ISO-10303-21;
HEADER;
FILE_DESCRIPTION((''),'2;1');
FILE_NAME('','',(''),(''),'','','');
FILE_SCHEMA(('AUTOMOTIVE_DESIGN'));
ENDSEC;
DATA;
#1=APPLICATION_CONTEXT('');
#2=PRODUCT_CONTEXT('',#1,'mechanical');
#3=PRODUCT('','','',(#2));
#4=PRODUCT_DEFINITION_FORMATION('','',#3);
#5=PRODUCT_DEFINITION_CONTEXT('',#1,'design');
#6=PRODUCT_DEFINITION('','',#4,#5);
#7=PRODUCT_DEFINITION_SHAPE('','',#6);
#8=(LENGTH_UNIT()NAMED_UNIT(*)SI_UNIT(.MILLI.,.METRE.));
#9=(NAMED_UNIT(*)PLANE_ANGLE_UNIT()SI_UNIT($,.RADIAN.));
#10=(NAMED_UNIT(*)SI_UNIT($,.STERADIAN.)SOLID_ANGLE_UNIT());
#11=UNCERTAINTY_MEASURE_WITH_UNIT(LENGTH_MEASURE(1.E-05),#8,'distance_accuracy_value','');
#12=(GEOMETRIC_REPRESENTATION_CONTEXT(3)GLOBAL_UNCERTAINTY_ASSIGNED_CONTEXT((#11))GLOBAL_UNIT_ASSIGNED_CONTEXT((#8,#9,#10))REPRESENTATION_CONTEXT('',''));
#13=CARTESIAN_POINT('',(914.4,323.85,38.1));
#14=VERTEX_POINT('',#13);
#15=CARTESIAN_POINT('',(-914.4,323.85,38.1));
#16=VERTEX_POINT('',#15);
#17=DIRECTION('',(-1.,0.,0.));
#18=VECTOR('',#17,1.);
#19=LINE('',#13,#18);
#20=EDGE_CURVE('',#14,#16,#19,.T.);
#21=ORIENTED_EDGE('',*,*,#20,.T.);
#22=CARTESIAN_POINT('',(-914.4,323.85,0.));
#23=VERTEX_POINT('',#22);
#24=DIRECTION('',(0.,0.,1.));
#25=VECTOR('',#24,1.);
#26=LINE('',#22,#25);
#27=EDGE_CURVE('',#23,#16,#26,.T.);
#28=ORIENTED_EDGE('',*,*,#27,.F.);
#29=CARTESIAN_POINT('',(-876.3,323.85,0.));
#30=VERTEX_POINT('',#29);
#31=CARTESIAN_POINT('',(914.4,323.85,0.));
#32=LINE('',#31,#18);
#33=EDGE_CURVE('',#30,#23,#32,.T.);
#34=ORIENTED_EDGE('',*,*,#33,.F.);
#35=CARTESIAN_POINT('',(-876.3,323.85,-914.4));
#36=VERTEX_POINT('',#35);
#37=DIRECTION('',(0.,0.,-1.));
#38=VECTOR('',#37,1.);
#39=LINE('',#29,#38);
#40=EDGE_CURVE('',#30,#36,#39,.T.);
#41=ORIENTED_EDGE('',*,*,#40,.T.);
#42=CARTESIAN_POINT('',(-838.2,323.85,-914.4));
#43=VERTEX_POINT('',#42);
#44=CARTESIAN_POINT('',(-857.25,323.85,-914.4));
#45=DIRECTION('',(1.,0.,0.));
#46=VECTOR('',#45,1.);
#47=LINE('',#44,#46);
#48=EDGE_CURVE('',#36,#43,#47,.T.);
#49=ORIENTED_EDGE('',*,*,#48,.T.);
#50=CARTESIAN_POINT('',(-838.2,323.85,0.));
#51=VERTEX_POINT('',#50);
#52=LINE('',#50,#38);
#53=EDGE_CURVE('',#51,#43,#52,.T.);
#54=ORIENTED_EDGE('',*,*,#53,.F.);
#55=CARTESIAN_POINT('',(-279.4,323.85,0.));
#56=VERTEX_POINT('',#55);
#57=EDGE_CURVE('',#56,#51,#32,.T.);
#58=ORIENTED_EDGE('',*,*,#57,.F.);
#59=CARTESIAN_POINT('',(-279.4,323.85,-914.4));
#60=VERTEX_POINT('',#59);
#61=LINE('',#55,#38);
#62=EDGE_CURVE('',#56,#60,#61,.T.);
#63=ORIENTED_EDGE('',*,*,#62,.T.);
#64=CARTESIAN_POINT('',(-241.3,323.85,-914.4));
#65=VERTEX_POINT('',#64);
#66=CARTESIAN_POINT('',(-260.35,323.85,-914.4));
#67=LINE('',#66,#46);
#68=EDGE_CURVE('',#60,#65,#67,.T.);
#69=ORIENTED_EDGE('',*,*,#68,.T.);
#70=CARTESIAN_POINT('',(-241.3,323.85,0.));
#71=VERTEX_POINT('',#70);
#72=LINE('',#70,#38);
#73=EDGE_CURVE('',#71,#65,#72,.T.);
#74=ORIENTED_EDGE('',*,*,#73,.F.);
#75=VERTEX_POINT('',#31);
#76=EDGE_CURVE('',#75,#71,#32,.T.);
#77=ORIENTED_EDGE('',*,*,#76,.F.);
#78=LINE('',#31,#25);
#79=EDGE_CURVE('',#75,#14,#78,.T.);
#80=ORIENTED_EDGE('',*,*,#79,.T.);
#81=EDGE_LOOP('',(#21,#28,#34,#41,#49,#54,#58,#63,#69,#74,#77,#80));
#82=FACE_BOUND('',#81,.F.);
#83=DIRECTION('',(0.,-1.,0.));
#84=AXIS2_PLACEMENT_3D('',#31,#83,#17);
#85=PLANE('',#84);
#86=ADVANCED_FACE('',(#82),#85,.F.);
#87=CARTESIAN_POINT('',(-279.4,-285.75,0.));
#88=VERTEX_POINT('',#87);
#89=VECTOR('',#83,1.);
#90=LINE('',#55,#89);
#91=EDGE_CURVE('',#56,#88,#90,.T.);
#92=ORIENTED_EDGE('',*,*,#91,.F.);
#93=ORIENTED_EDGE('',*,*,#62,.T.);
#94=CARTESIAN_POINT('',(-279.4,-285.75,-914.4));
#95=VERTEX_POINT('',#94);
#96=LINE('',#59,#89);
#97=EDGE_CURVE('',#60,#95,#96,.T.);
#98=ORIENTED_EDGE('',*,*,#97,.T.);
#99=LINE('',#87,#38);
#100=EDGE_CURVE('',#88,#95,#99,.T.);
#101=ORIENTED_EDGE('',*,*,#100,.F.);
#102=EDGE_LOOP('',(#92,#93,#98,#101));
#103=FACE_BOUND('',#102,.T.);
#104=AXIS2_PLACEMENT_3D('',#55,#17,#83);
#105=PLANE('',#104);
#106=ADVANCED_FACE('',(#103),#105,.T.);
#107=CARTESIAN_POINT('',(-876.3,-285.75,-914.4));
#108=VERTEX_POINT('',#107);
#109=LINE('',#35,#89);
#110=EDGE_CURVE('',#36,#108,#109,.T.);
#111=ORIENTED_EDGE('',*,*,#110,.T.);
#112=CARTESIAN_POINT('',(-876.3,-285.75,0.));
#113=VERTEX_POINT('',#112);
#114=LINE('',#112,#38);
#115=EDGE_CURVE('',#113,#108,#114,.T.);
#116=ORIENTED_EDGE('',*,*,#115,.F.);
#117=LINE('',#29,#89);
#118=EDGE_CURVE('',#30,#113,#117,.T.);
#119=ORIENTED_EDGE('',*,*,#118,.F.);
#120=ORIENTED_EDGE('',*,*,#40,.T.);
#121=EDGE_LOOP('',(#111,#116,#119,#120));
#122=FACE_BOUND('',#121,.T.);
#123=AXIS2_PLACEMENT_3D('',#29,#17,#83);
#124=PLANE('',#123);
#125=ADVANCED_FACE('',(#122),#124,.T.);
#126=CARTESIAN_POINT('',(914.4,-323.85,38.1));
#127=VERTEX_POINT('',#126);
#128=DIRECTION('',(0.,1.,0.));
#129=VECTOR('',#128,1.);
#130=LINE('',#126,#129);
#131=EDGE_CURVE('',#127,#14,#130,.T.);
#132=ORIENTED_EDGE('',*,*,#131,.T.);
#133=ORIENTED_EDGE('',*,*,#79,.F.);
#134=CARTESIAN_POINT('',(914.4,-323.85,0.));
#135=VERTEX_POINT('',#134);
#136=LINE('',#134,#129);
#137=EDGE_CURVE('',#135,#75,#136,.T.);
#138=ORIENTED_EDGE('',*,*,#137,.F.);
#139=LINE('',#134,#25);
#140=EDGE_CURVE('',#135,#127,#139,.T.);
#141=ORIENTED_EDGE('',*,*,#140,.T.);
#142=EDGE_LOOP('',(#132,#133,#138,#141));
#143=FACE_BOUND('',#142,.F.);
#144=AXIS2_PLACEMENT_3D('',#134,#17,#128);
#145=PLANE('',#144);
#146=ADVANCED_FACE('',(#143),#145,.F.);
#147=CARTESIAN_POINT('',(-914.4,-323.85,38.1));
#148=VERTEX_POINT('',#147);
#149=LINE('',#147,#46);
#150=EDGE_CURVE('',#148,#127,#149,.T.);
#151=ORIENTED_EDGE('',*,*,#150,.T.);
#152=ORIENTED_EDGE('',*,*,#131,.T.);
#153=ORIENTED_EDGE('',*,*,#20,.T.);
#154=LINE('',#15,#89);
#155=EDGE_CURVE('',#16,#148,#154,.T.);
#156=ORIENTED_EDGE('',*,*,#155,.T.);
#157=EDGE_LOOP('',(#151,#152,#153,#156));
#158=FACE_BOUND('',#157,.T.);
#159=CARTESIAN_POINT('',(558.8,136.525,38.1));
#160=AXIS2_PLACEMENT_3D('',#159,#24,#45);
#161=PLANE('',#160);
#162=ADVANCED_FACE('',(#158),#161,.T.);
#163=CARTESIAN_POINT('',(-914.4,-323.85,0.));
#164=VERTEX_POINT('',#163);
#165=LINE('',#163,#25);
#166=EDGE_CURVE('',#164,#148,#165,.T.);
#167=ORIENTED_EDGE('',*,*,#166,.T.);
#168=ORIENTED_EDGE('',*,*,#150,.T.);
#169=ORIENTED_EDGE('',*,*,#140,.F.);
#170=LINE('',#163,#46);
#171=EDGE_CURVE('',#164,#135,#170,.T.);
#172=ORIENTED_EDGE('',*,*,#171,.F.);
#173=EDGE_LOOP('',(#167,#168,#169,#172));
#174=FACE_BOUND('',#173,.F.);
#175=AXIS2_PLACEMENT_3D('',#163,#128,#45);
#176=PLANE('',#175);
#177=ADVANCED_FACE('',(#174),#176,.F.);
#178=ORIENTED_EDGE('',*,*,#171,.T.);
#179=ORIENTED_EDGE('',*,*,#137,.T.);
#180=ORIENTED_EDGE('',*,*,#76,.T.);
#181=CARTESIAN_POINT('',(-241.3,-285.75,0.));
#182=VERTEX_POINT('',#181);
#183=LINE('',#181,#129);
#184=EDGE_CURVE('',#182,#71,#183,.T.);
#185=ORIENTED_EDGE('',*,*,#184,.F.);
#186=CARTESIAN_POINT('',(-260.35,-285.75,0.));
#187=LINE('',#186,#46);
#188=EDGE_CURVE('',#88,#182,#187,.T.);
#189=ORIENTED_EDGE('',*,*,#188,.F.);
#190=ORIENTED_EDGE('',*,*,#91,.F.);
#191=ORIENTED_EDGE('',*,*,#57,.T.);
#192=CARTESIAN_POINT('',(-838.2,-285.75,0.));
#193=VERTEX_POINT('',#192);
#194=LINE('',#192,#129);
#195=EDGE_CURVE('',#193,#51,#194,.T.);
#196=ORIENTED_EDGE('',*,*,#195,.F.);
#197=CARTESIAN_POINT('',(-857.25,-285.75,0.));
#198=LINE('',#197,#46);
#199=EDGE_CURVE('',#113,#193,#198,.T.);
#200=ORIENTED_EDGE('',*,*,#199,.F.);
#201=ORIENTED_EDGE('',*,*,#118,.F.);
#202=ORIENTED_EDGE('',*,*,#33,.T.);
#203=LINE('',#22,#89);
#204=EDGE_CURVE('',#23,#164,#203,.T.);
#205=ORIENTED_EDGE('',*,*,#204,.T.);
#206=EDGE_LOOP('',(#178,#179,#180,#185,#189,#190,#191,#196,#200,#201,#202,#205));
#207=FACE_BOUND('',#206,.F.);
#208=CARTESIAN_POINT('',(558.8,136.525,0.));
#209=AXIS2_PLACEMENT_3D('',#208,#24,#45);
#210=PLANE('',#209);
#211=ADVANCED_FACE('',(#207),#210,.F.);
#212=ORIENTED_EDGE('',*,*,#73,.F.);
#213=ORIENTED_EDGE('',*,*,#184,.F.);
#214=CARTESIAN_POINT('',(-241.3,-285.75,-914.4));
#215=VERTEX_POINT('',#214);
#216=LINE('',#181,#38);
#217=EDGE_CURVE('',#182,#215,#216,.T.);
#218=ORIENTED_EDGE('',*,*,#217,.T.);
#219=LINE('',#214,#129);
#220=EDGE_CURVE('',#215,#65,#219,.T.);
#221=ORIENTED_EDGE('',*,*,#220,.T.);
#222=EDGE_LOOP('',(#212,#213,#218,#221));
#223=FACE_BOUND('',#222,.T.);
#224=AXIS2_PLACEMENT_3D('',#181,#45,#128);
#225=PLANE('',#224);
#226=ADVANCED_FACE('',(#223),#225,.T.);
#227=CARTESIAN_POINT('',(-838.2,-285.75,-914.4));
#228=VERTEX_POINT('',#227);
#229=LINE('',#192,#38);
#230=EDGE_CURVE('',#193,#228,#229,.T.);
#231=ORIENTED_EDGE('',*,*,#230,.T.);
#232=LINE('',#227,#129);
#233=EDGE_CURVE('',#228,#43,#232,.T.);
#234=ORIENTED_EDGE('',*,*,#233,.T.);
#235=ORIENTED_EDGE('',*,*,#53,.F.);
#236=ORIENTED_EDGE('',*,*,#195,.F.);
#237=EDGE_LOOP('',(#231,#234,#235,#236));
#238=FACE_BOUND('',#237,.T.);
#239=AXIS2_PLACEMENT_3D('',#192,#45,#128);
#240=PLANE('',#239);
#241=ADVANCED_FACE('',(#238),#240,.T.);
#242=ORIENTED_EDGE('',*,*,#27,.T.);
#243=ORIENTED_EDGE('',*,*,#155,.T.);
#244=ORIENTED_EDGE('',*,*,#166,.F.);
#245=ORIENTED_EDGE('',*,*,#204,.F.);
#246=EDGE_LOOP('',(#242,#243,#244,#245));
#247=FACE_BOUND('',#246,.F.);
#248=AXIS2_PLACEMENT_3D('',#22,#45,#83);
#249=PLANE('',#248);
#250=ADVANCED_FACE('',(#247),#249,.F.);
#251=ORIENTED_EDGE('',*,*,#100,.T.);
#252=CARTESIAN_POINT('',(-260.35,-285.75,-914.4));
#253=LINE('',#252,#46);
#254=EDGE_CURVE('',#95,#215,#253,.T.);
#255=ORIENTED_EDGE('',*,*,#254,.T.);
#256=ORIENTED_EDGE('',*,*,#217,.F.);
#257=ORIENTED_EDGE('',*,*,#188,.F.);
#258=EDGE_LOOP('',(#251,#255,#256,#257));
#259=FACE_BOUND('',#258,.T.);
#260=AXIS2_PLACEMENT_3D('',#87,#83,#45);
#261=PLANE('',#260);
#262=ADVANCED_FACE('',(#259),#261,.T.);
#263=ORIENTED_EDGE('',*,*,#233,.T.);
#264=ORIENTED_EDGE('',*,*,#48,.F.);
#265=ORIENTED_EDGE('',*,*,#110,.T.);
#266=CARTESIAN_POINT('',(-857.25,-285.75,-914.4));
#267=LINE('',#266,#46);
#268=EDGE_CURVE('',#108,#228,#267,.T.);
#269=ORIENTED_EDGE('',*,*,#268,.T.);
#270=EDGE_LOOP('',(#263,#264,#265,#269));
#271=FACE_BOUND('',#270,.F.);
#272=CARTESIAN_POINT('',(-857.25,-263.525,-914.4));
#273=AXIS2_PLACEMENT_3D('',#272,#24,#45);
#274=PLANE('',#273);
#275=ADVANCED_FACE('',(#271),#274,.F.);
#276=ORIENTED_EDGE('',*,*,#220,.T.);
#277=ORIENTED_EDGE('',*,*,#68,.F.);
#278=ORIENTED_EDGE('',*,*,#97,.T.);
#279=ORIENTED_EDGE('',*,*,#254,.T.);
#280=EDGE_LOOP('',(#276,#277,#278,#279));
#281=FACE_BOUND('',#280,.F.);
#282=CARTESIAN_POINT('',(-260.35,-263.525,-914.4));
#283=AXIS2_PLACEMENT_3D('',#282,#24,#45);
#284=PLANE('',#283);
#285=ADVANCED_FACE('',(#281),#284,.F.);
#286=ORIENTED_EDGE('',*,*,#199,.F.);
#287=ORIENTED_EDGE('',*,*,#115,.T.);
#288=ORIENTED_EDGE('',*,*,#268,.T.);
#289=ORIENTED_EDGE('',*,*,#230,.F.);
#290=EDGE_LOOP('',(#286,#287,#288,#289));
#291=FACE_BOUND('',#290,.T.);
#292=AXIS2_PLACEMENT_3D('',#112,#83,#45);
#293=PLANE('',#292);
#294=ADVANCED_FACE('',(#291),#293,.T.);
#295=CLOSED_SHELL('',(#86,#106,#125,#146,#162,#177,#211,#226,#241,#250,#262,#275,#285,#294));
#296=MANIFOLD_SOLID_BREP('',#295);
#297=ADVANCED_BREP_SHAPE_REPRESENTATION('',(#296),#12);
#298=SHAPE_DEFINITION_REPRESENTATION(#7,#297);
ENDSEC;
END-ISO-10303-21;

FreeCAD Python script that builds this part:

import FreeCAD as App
import Part
import Sketcher

V = App.Vector
Q = App.Units.Quantity


def add_polygon(sketch, points):
    """Adds a closed chain of lines whose ends are joined by coincident constraints."""
    first, n = sketch.GeometryCount, len(points)
    for a, b in zip(points, points[1:] + points[:1]):
        sketch.addGeometry(Part.LineSegment(App.Vector(*a, 0), App.Vector(*b, 0)), False)
    for i in range(n):
        sketch.addConstraint(Sketcher.Constraint("Coincident", first + i, 2, first + (i + 1) % n, 1))

doc = App.newDocument("Part")
body = doc.addObject("PartDesign::Body", "Body")

# Sketch on XY plane
sketch1 = doc.addObject("Sketcher::SketchObject", "Sketch")
body.addObject(sketch1)
sketch1.AttachmentSupport = (doc.XY_Plane, [""])
sketch1.MapMode = "FlatFace"
add_polygon(sketch1, [(-914, 324), (-914, -324), (914, -324), (914, 324)])  # lines 0-3
sketch1.addConstraint([
    Sketcher.Constraint("Vertical", 0),
    Sketcher.Constraint("Horizontal", 1),
    Sketcher.Constraint("Vertical", 2),
    Sketcher.Constraint("Horizontal", 3),
    Sketcher.Constraint("Symmetric", 0, 2, 2, 2, -1, 1),
    Sketcher.Constraint("DistanceX", 1, 1, 1, 2, Q("72 in")),
    Sketcher.Constraint("DistanceY", 0, 2, 0, 1, Q("25.5 in")),
])
pad1 = doc.addObject("PartDesign::Pad", "Pad")
body.addObject(pad1)
pad1.Profile = sketch1
pad1.Length = Q("1.5 in")

# Sketch on XY plane
sketch2 = doc.addObject("Sketcher::SketchObject", "Sketch001")
body.addObject(sketch2)
sketch2.AttachmentSupport = (doc.XY_Plane, [""])
sketch2.MapMode = "FlatFace"
add_polygon(sketch2, [(-279, -286), (-241, -286), (-241, 324), (-279, 324)])  # lines 0-3
sketch2.addConstraint([
    Sketcher.Constraint("Horizontal", 0),
    Sketcher.Constraint("Vertical", 1),
    Sketcher.Constraint("Horizontal", 2),
    Sketcher.Constraint("Vertical", 3),
    Sketcher.Constraint("DistanceY", 1, 1, 1, 2, Q("24 in")),
    Sketcher.Constraint("DistanceX", 0, 1, 0, 2, Q("1.5 in")),
    Sketcher.Constraint("DistanceX", 2, 2, -1, 1, Q("11 in")),
    Sketcher.Constraint("DistanceY", 0, 2, -1, 1, Q("11.25 in")),
])
pad2 = doc.addObject("PartDesign::Pad", "Pad001")
body.addObject(pad2)
pad2.Profile = sketch2
pad2.Length = Q("36 in")
pad2.Reversed = True

# Sketch on XY plane
sketch3 = doc.addObject("Sketcher::SketchObject", "Sketch002")
body.addObject(sketch3)
sketch3.AttachmentSupport = (doc.XY_Plane, [""])
sketch3.MapMode = "FlatFace"
add_polygon(sketch3, [(-876, -286), (-838, -286), (-838, 324), (-876, 324)])  # lines 0-3
sketch3.addConstraint([
    Sketcher.Constraint("Horizontal", 0),
    Sketcher.Constraint("Vertical", 1),
    Sketcher.Constraint("Horizontal", 2),
    Sketcher.Constraint("Vertical", 3),
    Sketcher.Constraint("DistanceY", 1, 1, 1, 2, Q("24 in")),
    Sketcher.Constraint("DistanceX", 0, 1, 0, 2, Q("1.5 in")),
    Sketcher.Constraint("DistanceX", 0, 2, -1, 1, Q("33 in")),
    Sketcher.Constraint("DistanceY", 0, 2, -1, 1, Q("11.25 in")),
])
pad3 = doc.addObject("PartDesign::Pad", "Pad002")
body.addObject(pad3)
pad3.Profile = sketch3
pad3.Length = Q("36 in")
pad3.Reversed = True

doc.recompute()
